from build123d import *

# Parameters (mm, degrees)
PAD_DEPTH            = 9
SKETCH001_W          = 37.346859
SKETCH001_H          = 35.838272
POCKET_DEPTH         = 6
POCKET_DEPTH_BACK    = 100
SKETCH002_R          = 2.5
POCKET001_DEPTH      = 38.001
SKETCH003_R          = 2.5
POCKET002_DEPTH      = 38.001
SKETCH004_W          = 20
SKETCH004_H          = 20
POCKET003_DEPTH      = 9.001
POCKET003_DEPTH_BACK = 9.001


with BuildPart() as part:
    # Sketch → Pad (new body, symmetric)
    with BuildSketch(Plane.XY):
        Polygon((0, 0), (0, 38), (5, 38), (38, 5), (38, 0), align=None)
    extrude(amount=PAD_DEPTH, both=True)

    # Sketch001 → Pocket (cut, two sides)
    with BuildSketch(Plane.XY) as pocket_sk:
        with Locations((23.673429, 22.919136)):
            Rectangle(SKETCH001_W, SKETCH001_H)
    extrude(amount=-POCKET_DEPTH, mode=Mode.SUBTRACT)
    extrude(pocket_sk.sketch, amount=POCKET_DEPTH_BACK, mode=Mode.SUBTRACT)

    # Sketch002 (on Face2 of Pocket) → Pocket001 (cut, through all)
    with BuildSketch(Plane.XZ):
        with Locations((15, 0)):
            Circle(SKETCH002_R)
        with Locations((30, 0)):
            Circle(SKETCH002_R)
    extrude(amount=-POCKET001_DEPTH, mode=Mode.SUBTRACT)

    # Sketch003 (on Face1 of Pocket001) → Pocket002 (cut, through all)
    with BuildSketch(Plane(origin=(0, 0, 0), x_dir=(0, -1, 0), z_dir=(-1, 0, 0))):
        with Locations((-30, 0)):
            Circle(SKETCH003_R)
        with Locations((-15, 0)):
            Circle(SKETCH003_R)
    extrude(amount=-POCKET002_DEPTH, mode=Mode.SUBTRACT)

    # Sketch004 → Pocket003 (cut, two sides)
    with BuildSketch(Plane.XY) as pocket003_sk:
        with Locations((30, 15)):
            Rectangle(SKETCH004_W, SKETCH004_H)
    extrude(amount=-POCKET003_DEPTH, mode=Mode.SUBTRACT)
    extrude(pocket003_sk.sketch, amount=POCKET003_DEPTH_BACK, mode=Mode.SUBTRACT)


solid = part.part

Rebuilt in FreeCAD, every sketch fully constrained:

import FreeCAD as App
import Part
import Sketcher

V = App.Vector
Q = App.Units.Quantity

doc = App.newDocument("Part")
body = doc.addObject("PartDesign::Body", "Body")

# Sketch on XY plane
sketch1 = body.newObject("Sketcher::SketchObject", "Sketch")
sketch1.AttachmentSupport = (doc.getObject("XY_Plane"), [""])
sketch1.MapMode = "FlatFace"
sketch1.addGeometry([
    Part.LineSegment(V(0, 38, 0), V(0, 0, 0)),  # 0
    Part.LineSegment(V(0, 0, 0), V(38, 0, 0)),  # 1
    Part.LineSegment(V(38, 0, 0), V(38, 5, 0)),  # 2
    Part.LineSegment(V(38, 5, 0), V(5, 38, 0)),  # 3
    Part.LineSegment(V(5, 38, 0), V(0, 38, 0)),  # 4
], False)
sketch1.addConstraint([
    Sketcher.Constraint("Coincident", 0, 2, 1, 1),
    Sketcher.Constraint("Coincident", 1, 2, 2, 1),
    Sketcher.Constraint("Coincident", 2, 2, 3, 1),
    Sketcher.Constraint("Coincident", 3, 2, 4, 1),
    Sketcher.Constraint("Coincident", 4, 2, 0, 1),
    Sketcher.Constraint("Vertical", 0),
    Sketcher.Constraint("Horizontal", 1),
    Sketcher.Constraint("Vertical", 2),
    Sketcher.Constraint("Horizontal", 4),
    Sketcher.Constraint("Coincident", 0, 2, -1, 1),
    Sketcher.Constraint("Equal", 1, 0),
    Sketcher.Constraint("Equal", 4, 2),
    Sketcher.Constraint("DistanceX", 1, 1, 1, 2, Q("38 mm")),
    Sketcher.Constraint("DistanceX", 4, 2, 4, 1, Q("5 mm")),
])
pad1 = body.newObject("PartDesign::Pad", "Pad")
pad1.Profile = sketch1
pad1.Length = 18
pad1.Midplane = True

# Sketch on XY plane
sketch2 = body.newObject("Sketcher::SketchObject", "Sketch001")
sketch2.AttachmentSupport = (doc.getObject("XY_Plane"), [""])
sketch2.MapMode = "FlatFace"
sketch2.addGeometry([
    Part.LineSegment(V(5, 40.838272, 0), V(5, 5, 0)),
    Part.LineSegment(V(5, 5, 0), V(42.346859, 5, 0)),
    Part.LineSegment(V(42.346859, 5, 0), V(42.346859, 40.838272, 0)),
    Part.LineSegment(V(42.346859, 40.838272, 0), V(5, 40.838272, 0)),
], False)
sketch2.addConstraint([
    Sketcher.Constraint("Coincident", 0, 2, 1, 1),
    Sketcher.Constraint("Coincident", 1, 2, 2, 1),
    Sketcher.Constraint("Coincident", 2, 2, 3, 1),
    Sketcher.Constraint("Coincident", 3, 2, 0, 1),
    Sketcher.Constraint("Vertical", 0),
    Sketcher.Constraint("Horizontal", 1),
    Sketcher.Constraint("Vertical", 2),
    Sketcher.Constraint("Horizontal", 3),
    Sketcher.Constraint("DistanceX", -1, 1, 0, 2, Q("5 mm")),
    Sketcher.Constraint("DistanceY", -1, 1, 0, 2, Q("5 mm")),
    Sketcher.Constraint("DistanceX", 1, 1, 1, 2, Q("37.346859 mm")),
    Sketcher.Constraint("DistanceY", 0, 2, 0, 1, Q("35.838272 mm")),
])
pocket1 = body.newObject("PartDesign::Pocket", "Pocket")
pocket1.Profile = sketch2
pocket1.Type = "TwoLengths"
pocket1.Length = 6
pocket1.Length2 = 100

# Sketch on XZ plane
sketch3 = body.newObject("Sketcher::SketchObject", "Sketch002")
sketch3.AttachmentSupport = (doc.getObject("XZ_Plane"), [""])
sketch3.MapMode = "FlatFace"
sketch3.addGeometry([
    Part.Circle(V(15, 0, 0), V(0, 0, 1), 2.5),
    Part.Circle(V(30, 0, 0), V(0, 0, 1), 2.5),
], False)
sketch3.addConstraint([
    Sketcher.Constraint("Equal", 0, 1),
    Sketcher.Constraint("PointOnObject", 0, 3, -1),
    Sketcher.Constraint("PointOnObject", 1, 3, -1),
    Sketcher.Constraint("Diameter", 0, Q("5 mm")),
    Sketcher.Constraint("DistanceX", -1, 1, 0, 3, Q("15 mm")),
    Sketcher.Constraint("DistanceX", -1, 1, 1, 3, Q("30 mm")),
])
pocket2 = body.newObject("PartDesign::Pocket", "Pocket001")
pocket2.Profile = sketch3
pocket2.Type = "ThroughAll"

# Sketch on YZ plane
sketch4 = body.newObject("Sketcher::SketchObject", "Sketch003")
sketch4.AttachmentSupport = (doc.getObject("YZ_Plane"), [""])
sketch4.MapMode = "FlatFace"
sketch4.addGeometry([
    Part.Circle(V(30, 0, 0), V(0, 0, 1), 2.5),
    Part.Circle(V(15, 0, 0), V(0, 0, 1), 2.5),
], False)
sketch4.addConstraint([
    Sketcher.Constraint("Equal", 0, 1),
    Sketcher.Constraint("PointOnObject", 0, 3, -1),
    Sketcher.Constraint("PointOnObject", 1, 3, -1),
    Sketcher.Constraint("Diameter", 0, Q("5 mm")),
    Sketcher.Constraint("DistanceX", -1, 1, 0, 3, Q("30 mm")),
    Sketcher.Constraint("DistanceX", -1, 1, 1, 3, Q("15 mm")),
])
pocket3 = body.newObject("PartDesign::Pocket", "Pocket002")
pocket3.Profile = sketch4
pocket3.Type = "ThroughAll"
pocket3.Reversed = True

# Sketch on XY plane
sketch5 = body.newObject("Sketcher::SketchObject", "Sketch004")
sketch5.AttachmentSupport = (doc.getObject("XY_Plane"), [""])
sketch5.MapMode = "FlatFace"
sketch5.addGeometry([
    Part.LineSegment(V(20, 25, 0), V(20, 5, 0)),
    Part.LineSegment(V(20, 5, 0), V(40, 5, 0)),
    Part.LineSegment(V(40, 5, 0), V(40, 25, 0)),
    Part.LineSegment(V(40, 25, 0), V(20, 25, 0)),
], False)
sketch5.addConstraint([
    Sketcher.Constraint("Coincident", 0, 2, 1, 1),
    Sketcher.Constraint("Coincident", 1, 2, 2, 1),
    Sketcher.Constraint("Coincident", 2, 2, 3, 1),
    Sketcher.Constraint("Coincident", 3, 2, 0, 1),
    Sketcher.Constraint("Vertical", 0),
    Sketcher.Constraint("Horizontal", 1),
    Sketcher.Constraint("Vertical", 2),
    Sketcher.Constraint("Horizontal", 3),
    Sketcher.Constraint("Equal", 3, 0),
    Sketcher.Constraint("DistanceX", 1, 1, 1, 2, Q("20 mm")),
    Sketcher.Constraint("DistanceX", -1, 1, 0, 2, Q("20 mm")),
    Sketcher.Constraint("DistanceY", -1, 1, 0, 2, Q("5 mm")),
])
pocket4 = body.newObject("PartDesign::Pocket", "Pocket003")
pocket4.Profile = sketch5
pocket4.Type = "ThroughAll"
pocket4.Midplane = True

doc.recompute()
